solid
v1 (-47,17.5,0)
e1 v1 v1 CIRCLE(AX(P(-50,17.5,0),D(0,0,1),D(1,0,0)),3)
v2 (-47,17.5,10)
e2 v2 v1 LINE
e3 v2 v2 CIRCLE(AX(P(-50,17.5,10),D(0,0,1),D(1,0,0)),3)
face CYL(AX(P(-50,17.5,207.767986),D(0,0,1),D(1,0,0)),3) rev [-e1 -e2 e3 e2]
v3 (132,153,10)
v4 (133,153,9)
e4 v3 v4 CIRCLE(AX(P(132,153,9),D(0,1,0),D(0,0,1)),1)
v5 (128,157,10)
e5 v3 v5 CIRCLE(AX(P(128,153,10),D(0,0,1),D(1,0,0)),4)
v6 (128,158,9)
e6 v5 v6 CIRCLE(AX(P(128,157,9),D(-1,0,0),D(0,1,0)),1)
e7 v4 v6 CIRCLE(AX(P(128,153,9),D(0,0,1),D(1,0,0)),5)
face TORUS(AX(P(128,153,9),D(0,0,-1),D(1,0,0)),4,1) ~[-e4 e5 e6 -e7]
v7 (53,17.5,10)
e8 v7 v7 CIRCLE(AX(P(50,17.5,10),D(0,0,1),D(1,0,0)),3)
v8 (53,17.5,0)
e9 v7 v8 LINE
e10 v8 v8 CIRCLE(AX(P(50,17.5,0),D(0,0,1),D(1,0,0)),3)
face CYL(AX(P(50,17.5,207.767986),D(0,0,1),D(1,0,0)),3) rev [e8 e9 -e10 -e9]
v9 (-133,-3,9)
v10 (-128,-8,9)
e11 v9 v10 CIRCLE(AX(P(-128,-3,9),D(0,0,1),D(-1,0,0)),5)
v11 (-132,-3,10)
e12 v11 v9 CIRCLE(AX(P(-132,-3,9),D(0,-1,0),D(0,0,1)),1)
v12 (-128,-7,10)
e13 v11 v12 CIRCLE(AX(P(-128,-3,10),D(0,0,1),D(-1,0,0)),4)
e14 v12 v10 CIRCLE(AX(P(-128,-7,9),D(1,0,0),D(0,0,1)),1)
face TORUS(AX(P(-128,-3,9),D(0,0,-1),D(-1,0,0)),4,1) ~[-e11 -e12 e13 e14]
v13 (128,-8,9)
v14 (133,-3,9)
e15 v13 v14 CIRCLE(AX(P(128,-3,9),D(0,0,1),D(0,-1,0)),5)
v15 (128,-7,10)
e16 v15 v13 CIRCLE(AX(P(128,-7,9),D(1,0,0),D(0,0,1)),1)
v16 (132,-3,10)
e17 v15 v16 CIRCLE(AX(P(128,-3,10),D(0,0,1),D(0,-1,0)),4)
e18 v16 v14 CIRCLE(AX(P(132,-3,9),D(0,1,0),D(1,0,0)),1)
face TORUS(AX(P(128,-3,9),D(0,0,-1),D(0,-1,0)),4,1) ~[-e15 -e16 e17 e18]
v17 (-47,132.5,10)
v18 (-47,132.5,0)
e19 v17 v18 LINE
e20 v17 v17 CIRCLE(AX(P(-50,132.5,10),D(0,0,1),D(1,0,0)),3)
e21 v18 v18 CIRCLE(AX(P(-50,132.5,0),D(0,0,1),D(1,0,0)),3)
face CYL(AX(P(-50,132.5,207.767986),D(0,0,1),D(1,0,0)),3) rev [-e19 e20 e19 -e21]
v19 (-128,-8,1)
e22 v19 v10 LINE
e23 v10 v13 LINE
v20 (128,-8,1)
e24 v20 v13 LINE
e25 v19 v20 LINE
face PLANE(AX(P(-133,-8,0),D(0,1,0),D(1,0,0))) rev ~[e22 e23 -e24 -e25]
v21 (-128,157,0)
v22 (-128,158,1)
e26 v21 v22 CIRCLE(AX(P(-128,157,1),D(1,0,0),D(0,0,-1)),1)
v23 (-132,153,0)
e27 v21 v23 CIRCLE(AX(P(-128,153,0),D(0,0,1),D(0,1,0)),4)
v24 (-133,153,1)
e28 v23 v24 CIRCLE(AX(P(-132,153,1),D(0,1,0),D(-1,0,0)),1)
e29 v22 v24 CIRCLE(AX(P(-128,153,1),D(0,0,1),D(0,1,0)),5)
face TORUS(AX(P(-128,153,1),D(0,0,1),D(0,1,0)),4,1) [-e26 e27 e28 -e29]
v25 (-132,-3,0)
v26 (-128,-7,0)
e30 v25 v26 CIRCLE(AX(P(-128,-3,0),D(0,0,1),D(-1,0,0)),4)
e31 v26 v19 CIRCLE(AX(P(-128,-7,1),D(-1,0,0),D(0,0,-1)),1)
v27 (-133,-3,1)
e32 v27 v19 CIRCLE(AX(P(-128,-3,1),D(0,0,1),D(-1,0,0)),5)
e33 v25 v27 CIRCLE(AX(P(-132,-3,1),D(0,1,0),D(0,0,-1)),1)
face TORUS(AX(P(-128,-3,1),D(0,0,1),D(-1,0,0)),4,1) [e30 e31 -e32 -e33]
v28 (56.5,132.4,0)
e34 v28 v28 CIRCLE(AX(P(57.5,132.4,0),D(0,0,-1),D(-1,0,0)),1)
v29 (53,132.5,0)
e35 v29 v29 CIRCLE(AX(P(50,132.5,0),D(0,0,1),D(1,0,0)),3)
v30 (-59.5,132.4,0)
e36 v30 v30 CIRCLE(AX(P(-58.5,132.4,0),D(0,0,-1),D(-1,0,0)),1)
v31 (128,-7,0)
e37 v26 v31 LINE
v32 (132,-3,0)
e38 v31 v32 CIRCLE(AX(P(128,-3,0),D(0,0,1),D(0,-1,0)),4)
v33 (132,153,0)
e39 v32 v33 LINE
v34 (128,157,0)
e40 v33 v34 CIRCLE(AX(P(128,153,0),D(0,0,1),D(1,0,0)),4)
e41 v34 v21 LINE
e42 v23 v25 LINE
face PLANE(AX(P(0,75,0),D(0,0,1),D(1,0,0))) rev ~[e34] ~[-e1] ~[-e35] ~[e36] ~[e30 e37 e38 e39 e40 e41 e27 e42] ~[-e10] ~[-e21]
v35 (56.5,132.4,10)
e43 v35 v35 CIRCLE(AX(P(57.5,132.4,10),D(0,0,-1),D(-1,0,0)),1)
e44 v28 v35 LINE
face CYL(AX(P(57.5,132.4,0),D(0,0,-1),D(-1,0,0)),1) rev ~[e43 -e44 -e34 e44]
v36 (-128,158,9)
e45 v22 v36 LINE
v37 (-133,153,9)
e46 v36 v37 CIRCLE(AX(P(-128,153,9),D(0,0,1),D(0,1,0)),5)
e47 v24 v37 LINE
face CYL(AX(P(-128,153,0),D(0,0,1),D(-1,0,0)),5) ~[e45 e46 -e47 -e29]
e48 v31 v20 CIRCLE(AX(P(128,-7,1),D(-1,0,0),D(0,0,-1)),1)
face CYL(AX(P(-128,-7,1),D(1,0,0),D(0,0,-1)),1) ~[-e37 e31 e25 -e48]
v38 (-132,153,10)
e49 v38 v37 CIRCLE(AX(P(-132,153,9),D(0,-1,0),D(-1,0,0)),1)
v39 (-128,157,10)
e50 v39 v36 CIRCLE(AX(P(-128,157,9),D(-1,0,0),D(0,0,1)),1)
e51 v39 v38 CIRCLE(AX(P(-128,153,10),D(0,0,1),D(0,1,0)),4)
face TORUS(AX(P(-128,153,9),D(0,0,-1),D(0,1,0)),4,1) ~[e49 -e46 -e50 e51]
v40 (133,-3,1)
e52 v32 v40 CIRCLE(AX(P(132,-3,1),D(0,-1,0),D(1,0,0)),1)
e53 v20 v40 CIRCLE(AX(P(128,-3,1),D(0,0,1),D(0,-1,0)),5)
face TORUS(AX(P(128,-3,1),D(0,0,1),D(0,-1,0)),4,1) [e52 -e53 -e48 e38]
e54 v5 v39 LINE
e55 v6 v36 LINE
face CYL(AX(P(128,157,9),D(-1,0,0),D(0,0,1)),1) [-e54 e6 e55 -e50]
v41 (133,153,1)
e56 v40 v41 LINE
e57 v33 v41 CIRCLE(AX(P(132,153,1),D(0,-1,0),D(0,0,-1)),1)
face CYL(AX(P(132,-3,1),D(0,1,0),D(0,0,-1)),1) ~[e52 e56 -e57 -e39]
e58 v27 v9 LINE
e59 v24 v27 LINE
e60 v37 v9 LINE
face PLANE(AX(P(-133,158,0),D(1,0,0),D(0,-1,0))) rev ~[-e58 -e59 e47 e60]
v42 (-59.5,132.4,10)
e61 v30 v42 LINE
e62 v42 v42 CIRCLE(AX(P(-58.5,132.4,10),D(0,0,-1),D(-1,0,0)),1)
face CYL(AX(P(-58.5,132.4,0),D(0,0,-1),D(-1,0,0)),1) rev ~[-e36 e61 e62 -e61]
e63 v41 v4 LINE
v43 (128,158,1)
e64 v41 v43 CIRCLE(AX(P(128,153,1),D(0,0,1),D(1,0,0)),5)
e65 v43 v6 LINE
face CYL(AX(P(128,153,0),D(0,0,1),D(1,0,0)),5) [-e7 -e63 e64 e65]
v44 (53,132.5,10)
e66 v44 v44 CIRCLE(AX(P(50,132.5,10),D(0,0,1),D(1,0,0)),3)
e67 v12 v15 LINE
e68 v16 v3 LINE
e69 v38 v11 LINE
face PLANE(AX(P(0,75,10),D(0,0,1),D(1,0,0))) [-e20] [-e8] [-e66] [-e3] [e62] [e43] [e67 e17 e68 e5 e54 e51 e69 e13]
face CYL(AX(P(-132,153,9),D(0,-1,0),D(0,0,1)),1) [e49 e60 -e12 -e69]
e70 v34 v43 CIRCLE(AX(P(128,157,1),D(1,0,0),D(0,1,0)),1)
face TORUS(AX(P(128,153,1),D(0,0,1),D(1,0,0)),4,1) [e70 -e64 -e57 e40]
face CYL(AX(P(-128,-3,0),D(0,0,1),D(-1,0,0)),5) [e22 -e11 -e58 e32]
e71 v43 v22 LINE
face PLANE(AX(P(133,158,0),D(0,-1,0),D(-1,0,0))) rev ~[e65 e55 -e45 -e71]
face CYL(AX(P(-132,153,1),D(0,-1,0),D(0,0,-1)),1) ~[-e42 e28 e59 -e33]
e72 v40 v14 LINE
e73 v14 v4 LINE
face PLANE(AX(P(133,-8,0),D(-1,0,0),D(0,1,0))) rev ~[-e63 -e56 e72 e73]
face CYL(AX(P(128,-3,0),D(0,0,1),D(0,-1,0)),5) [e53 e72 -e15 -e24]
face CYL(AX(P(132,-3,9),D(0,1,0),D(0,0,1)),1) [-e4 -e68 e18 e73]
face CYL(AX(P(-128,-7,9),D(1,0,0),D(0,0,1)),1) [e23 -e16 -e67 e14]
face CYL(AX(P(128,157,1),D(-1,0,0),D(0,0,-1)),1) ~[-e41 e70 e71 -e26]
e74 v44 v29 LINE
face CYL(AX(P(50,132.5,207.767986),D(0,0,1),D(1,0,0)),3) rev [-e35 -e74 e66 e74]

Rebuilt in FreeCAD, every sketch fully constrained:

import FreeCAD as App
import Part
import Sketcher


def edges_at(feature, points):
    """Names of the edges that pass closest to the given points."""
    edges = feature.Shape.Edges
    near = lambda p: min(range(len(edges)), key=lambda i: edges[i].distToShape(Part.Vertex(*p))[0])
    return sorted({f"Edge{near(p) + 1}" for p in points})

doc = App.newDocument("Part")
params = doc.addObject("Spreadsheet::Sheet", "Params")
for row, (alias, value) in enumerate([
    ("sketch1_width", "266 mm"),
    ("sketch1_height", "166 mm"),
    ("pad1_length", "10 mm"),
    ("fillet_radius", "5 mm"),
    ("sketch2_diameter", "6 mm"),
    ("fillet2_radius", "1 mm"),
    ("sketch3_diameter", "2 mm"),
], start=1):
    params.set(f"A{row}", alias)
    params.set(f"B{row}", "=" + value)
    params.setAlias(f"B{row}", alias)

body = doc.addObject("PartDesign::Body", "Body")

# Sketch on XY plane
sketch1 = body.newObject("Sketcher::SketchObject", "Sketch")
sketch1.AttachmentSupport = (doc.getObject("XY_Plane"), [""])
sketch1.MapMode = "FlatFace"
sketch1.addGeometry(Part.LineSegment(App.Vector(-133, 158, 0), App.Vector(-133, -8, 0)), False)
sketch1.addGeometry(Part.LineSegment(App.Vector(-133, -8, 0), App.Vector(133, -8, 0)), False)
sketch1.addGeometry(Part.LineSegment(App.Vector(133, -8, 0), App.Vector(133, 158, 0)), False)
sketch1.addGeometry(Part.LineSegment(App.Vector(133, 158, 0), App.Vector(-133, 158, 0)), False)
sketch1.addConstraint(Sketcher.Constraint("Coincident", 0, 2, 1, 1))
sketch1.addConstraint(Sketcher.Constraint("Coincident", 1, 2, 2, 1))
sketch1.addConstraint(Sketcher.Constraint("Coincident", 2, 2, 3, 1))
sketch1.addConstraint(Sketcher.Constraint("Coincident", 3, 2, 0, 1))
sketch1.addConstraint(Sketcher.Constraint("Vertical", 0))
sketch1.addConstraint(Sketcher.Constraint("Horizontal", 1))
sketch1.addConstraint(Sketcher.Constraint("Vertical", 2))
sketch1.addConstraint(Sketcher.Constraint("Horizontal", 3))
sketch1.addConstraint(Sketcher.Constraint("DistanceX", 1, 1, 1, 2, 266.0))
sketch1.addConstraint(Sketcher.Constraint("DistanceY", 0, 2, 0, 1, 166.0))
sketch1.addConstraint(Sketcher.Constraint("DistanceX", 0, 2, -1, 1, 133.0))
sketch1.addConstraint(Sketcher.Constraint("DistanceY", 0, 2, -1, 1, 8.0))
sketch1.setExpression("Constraints[8]", "Params.sketch1_width")
sketch1.setExpression("Constraints[9]", "Params.sketch1_height")
pad1 = body.newObject("PartDesign::Pad", "Pad")
pad1.Profile = sketch1
pad1.setExpression("Length", "Params.pad1_length")
doc.recompute()

fillet = body.newObject("PartDesign::Fillet", "Fillet")
fillet.Base = (pad1, edges_at(pad1, [
    (-133, -8, 5),
    (133, -8, 5),
    (133, 158, 5),
    (-133, 158, 5),
]))
fillet.setExpression("Radius", "Params.fillet_radius")

# Sketch on XY plane
sketch2 = body.newObject("Sketcher::SketchObject", "Sketch001")
sketch2.AttachmentSupport = (doc.getObject("XY_Plane"), [""])
sketch2.MapMode = "FlatFace"
sketch2.addGeometry(Part.Circle(App.Vector(50, 132.5, 0), App.Vector(0, 0, 1), 3), False)
sketch2.addGeometry(Part.Circle(App.Vector(-50, 132.5, 0), App.Vector(0, 0, 1), 3), False)
sketch2.addGeometry(Part.Circle(App.Vector(50, 17.5, 0), App.Vector(0, 0, 1), 3), False)
sketch2.addGeometry(Part.Circle(App.Vector(-50, 17.5, 0), App.Vector(0, 0, 1), 3), False)
sketch2.addConstraint(Sketcher.Constraint("Equal", 0, 1))
sketch2.addConstraint(Sketcher.Constraint("Equal", 1, 2))
sketch2.addConstraint(Sketcher.Constraint("Equal", 2, 3))
sketch2.addConstraint(Sketcher.Constraint("Symmetric", 0, 3, 1, 3, -2))
sketch2.addConstraint(Sketcher.Constraint("Symmetric", 2, 3, 3, 3, -2))
sketch2.addConstraint(Sketcher.Constraint("Vertical", 0, 3, 2, 3))
sketch2.addConstraint(Sketcher.Constraint("Diameter", 0, 6.0))
sketch2.addConstraint(Sketcher.Constraint("DistanceX", -1, 1, 0, 3, 50.0))
sketch2.addConstraint(Sketcher.Constraint("DistanceY", 2, 3, 0, 3, 115.0))
sketch2.addConstraint(Sketcher.Constraint("DistanceY", -1, 1, 0, 3, 132.5))
sketch2.setExpression("Constraints[6]", "Params.sketch2_diameter")
pocket1 = body.newObject("PartDesign::Pocket", "Pocket")
pocket1.Profile = sketch2
pocket1.Type = "ThroughAll"
pocket1.Midplane = True
doc.recompute()

fillet2 = body.newObject("PartDesign::Fillet", "Fillet001")
fillet2.Base = (pocket1, edges_at(pocket1, [
    (0, -8, 10),
    (0, -8, 0),
    (131.536, -6.536, 10),
    (-131.536, -6.536, 10),
    (133, 75, 10),
    (-133, 75, 10),
    (131.536, 156.536, 10),
    (-131.536, 156.536, 10),
    (0, 158, 10),
    (131.536, -6.536, 0),
    (-131.536, -6.536, 0),
    (-133, 75, 0),
    (133, 75, 0),
    (-131.536, 156.536, 0),
    (131.536, 156.536, 0),
    (0, 158, 0),
]))
fillet2.setExpression("Radius", "Params.fillet2_radius")

# Sketch on XY plane
sketch3 = body.newObject("Sketcher::SketchObject", "Sketch002")
sketch3.AttachmentSupport = (doc.getObject("XY_Plane"), [""])
sketch3.MapMode = "FlatFace"
sketch3.addGeometry(Part.Circle(App.Vector(-58.5, 132.4, 0), App.Vector(0, 0, 1), 1), False)
sketch3.addGeometry(Part.Circle(App.Vector(57.5, 132.4, 0), App.Vector(0, 0, 1), 1), False)
sketch3.addConstraint(Sketcher.Constraint("Equal", 0, 1))
sketch3.addConstraint(Sketcher.Constraint("Horizontal", 0, 3, 1, 3))
sketch3.addConstraint(Sketcher.Constraint("Diameter", 0, 2.0))
sketch3.addConstraint(Sketcher.Constraint("DistanceX", 0, 3, 1, 3, 116.0))
sketch3.addConstraint(Sketcher.Constraint("DistanceX", 0, 3, -1, 1, 58.5))
sketch3.addConstraint(Sketcher.Constraint("DistanceY", -1, 1, 0, 3, 132.4))
sketch3.setExpression("Constraints[2]", "Params.sketch3_diameter")
pocket2 = body.newObject("PartDesign::Pocket", "Pocket001")
pocket2.Profile = sketch3
pocket2.Type = "ThroughAll"
pocket2.Reversed = True

doc.recompute()
